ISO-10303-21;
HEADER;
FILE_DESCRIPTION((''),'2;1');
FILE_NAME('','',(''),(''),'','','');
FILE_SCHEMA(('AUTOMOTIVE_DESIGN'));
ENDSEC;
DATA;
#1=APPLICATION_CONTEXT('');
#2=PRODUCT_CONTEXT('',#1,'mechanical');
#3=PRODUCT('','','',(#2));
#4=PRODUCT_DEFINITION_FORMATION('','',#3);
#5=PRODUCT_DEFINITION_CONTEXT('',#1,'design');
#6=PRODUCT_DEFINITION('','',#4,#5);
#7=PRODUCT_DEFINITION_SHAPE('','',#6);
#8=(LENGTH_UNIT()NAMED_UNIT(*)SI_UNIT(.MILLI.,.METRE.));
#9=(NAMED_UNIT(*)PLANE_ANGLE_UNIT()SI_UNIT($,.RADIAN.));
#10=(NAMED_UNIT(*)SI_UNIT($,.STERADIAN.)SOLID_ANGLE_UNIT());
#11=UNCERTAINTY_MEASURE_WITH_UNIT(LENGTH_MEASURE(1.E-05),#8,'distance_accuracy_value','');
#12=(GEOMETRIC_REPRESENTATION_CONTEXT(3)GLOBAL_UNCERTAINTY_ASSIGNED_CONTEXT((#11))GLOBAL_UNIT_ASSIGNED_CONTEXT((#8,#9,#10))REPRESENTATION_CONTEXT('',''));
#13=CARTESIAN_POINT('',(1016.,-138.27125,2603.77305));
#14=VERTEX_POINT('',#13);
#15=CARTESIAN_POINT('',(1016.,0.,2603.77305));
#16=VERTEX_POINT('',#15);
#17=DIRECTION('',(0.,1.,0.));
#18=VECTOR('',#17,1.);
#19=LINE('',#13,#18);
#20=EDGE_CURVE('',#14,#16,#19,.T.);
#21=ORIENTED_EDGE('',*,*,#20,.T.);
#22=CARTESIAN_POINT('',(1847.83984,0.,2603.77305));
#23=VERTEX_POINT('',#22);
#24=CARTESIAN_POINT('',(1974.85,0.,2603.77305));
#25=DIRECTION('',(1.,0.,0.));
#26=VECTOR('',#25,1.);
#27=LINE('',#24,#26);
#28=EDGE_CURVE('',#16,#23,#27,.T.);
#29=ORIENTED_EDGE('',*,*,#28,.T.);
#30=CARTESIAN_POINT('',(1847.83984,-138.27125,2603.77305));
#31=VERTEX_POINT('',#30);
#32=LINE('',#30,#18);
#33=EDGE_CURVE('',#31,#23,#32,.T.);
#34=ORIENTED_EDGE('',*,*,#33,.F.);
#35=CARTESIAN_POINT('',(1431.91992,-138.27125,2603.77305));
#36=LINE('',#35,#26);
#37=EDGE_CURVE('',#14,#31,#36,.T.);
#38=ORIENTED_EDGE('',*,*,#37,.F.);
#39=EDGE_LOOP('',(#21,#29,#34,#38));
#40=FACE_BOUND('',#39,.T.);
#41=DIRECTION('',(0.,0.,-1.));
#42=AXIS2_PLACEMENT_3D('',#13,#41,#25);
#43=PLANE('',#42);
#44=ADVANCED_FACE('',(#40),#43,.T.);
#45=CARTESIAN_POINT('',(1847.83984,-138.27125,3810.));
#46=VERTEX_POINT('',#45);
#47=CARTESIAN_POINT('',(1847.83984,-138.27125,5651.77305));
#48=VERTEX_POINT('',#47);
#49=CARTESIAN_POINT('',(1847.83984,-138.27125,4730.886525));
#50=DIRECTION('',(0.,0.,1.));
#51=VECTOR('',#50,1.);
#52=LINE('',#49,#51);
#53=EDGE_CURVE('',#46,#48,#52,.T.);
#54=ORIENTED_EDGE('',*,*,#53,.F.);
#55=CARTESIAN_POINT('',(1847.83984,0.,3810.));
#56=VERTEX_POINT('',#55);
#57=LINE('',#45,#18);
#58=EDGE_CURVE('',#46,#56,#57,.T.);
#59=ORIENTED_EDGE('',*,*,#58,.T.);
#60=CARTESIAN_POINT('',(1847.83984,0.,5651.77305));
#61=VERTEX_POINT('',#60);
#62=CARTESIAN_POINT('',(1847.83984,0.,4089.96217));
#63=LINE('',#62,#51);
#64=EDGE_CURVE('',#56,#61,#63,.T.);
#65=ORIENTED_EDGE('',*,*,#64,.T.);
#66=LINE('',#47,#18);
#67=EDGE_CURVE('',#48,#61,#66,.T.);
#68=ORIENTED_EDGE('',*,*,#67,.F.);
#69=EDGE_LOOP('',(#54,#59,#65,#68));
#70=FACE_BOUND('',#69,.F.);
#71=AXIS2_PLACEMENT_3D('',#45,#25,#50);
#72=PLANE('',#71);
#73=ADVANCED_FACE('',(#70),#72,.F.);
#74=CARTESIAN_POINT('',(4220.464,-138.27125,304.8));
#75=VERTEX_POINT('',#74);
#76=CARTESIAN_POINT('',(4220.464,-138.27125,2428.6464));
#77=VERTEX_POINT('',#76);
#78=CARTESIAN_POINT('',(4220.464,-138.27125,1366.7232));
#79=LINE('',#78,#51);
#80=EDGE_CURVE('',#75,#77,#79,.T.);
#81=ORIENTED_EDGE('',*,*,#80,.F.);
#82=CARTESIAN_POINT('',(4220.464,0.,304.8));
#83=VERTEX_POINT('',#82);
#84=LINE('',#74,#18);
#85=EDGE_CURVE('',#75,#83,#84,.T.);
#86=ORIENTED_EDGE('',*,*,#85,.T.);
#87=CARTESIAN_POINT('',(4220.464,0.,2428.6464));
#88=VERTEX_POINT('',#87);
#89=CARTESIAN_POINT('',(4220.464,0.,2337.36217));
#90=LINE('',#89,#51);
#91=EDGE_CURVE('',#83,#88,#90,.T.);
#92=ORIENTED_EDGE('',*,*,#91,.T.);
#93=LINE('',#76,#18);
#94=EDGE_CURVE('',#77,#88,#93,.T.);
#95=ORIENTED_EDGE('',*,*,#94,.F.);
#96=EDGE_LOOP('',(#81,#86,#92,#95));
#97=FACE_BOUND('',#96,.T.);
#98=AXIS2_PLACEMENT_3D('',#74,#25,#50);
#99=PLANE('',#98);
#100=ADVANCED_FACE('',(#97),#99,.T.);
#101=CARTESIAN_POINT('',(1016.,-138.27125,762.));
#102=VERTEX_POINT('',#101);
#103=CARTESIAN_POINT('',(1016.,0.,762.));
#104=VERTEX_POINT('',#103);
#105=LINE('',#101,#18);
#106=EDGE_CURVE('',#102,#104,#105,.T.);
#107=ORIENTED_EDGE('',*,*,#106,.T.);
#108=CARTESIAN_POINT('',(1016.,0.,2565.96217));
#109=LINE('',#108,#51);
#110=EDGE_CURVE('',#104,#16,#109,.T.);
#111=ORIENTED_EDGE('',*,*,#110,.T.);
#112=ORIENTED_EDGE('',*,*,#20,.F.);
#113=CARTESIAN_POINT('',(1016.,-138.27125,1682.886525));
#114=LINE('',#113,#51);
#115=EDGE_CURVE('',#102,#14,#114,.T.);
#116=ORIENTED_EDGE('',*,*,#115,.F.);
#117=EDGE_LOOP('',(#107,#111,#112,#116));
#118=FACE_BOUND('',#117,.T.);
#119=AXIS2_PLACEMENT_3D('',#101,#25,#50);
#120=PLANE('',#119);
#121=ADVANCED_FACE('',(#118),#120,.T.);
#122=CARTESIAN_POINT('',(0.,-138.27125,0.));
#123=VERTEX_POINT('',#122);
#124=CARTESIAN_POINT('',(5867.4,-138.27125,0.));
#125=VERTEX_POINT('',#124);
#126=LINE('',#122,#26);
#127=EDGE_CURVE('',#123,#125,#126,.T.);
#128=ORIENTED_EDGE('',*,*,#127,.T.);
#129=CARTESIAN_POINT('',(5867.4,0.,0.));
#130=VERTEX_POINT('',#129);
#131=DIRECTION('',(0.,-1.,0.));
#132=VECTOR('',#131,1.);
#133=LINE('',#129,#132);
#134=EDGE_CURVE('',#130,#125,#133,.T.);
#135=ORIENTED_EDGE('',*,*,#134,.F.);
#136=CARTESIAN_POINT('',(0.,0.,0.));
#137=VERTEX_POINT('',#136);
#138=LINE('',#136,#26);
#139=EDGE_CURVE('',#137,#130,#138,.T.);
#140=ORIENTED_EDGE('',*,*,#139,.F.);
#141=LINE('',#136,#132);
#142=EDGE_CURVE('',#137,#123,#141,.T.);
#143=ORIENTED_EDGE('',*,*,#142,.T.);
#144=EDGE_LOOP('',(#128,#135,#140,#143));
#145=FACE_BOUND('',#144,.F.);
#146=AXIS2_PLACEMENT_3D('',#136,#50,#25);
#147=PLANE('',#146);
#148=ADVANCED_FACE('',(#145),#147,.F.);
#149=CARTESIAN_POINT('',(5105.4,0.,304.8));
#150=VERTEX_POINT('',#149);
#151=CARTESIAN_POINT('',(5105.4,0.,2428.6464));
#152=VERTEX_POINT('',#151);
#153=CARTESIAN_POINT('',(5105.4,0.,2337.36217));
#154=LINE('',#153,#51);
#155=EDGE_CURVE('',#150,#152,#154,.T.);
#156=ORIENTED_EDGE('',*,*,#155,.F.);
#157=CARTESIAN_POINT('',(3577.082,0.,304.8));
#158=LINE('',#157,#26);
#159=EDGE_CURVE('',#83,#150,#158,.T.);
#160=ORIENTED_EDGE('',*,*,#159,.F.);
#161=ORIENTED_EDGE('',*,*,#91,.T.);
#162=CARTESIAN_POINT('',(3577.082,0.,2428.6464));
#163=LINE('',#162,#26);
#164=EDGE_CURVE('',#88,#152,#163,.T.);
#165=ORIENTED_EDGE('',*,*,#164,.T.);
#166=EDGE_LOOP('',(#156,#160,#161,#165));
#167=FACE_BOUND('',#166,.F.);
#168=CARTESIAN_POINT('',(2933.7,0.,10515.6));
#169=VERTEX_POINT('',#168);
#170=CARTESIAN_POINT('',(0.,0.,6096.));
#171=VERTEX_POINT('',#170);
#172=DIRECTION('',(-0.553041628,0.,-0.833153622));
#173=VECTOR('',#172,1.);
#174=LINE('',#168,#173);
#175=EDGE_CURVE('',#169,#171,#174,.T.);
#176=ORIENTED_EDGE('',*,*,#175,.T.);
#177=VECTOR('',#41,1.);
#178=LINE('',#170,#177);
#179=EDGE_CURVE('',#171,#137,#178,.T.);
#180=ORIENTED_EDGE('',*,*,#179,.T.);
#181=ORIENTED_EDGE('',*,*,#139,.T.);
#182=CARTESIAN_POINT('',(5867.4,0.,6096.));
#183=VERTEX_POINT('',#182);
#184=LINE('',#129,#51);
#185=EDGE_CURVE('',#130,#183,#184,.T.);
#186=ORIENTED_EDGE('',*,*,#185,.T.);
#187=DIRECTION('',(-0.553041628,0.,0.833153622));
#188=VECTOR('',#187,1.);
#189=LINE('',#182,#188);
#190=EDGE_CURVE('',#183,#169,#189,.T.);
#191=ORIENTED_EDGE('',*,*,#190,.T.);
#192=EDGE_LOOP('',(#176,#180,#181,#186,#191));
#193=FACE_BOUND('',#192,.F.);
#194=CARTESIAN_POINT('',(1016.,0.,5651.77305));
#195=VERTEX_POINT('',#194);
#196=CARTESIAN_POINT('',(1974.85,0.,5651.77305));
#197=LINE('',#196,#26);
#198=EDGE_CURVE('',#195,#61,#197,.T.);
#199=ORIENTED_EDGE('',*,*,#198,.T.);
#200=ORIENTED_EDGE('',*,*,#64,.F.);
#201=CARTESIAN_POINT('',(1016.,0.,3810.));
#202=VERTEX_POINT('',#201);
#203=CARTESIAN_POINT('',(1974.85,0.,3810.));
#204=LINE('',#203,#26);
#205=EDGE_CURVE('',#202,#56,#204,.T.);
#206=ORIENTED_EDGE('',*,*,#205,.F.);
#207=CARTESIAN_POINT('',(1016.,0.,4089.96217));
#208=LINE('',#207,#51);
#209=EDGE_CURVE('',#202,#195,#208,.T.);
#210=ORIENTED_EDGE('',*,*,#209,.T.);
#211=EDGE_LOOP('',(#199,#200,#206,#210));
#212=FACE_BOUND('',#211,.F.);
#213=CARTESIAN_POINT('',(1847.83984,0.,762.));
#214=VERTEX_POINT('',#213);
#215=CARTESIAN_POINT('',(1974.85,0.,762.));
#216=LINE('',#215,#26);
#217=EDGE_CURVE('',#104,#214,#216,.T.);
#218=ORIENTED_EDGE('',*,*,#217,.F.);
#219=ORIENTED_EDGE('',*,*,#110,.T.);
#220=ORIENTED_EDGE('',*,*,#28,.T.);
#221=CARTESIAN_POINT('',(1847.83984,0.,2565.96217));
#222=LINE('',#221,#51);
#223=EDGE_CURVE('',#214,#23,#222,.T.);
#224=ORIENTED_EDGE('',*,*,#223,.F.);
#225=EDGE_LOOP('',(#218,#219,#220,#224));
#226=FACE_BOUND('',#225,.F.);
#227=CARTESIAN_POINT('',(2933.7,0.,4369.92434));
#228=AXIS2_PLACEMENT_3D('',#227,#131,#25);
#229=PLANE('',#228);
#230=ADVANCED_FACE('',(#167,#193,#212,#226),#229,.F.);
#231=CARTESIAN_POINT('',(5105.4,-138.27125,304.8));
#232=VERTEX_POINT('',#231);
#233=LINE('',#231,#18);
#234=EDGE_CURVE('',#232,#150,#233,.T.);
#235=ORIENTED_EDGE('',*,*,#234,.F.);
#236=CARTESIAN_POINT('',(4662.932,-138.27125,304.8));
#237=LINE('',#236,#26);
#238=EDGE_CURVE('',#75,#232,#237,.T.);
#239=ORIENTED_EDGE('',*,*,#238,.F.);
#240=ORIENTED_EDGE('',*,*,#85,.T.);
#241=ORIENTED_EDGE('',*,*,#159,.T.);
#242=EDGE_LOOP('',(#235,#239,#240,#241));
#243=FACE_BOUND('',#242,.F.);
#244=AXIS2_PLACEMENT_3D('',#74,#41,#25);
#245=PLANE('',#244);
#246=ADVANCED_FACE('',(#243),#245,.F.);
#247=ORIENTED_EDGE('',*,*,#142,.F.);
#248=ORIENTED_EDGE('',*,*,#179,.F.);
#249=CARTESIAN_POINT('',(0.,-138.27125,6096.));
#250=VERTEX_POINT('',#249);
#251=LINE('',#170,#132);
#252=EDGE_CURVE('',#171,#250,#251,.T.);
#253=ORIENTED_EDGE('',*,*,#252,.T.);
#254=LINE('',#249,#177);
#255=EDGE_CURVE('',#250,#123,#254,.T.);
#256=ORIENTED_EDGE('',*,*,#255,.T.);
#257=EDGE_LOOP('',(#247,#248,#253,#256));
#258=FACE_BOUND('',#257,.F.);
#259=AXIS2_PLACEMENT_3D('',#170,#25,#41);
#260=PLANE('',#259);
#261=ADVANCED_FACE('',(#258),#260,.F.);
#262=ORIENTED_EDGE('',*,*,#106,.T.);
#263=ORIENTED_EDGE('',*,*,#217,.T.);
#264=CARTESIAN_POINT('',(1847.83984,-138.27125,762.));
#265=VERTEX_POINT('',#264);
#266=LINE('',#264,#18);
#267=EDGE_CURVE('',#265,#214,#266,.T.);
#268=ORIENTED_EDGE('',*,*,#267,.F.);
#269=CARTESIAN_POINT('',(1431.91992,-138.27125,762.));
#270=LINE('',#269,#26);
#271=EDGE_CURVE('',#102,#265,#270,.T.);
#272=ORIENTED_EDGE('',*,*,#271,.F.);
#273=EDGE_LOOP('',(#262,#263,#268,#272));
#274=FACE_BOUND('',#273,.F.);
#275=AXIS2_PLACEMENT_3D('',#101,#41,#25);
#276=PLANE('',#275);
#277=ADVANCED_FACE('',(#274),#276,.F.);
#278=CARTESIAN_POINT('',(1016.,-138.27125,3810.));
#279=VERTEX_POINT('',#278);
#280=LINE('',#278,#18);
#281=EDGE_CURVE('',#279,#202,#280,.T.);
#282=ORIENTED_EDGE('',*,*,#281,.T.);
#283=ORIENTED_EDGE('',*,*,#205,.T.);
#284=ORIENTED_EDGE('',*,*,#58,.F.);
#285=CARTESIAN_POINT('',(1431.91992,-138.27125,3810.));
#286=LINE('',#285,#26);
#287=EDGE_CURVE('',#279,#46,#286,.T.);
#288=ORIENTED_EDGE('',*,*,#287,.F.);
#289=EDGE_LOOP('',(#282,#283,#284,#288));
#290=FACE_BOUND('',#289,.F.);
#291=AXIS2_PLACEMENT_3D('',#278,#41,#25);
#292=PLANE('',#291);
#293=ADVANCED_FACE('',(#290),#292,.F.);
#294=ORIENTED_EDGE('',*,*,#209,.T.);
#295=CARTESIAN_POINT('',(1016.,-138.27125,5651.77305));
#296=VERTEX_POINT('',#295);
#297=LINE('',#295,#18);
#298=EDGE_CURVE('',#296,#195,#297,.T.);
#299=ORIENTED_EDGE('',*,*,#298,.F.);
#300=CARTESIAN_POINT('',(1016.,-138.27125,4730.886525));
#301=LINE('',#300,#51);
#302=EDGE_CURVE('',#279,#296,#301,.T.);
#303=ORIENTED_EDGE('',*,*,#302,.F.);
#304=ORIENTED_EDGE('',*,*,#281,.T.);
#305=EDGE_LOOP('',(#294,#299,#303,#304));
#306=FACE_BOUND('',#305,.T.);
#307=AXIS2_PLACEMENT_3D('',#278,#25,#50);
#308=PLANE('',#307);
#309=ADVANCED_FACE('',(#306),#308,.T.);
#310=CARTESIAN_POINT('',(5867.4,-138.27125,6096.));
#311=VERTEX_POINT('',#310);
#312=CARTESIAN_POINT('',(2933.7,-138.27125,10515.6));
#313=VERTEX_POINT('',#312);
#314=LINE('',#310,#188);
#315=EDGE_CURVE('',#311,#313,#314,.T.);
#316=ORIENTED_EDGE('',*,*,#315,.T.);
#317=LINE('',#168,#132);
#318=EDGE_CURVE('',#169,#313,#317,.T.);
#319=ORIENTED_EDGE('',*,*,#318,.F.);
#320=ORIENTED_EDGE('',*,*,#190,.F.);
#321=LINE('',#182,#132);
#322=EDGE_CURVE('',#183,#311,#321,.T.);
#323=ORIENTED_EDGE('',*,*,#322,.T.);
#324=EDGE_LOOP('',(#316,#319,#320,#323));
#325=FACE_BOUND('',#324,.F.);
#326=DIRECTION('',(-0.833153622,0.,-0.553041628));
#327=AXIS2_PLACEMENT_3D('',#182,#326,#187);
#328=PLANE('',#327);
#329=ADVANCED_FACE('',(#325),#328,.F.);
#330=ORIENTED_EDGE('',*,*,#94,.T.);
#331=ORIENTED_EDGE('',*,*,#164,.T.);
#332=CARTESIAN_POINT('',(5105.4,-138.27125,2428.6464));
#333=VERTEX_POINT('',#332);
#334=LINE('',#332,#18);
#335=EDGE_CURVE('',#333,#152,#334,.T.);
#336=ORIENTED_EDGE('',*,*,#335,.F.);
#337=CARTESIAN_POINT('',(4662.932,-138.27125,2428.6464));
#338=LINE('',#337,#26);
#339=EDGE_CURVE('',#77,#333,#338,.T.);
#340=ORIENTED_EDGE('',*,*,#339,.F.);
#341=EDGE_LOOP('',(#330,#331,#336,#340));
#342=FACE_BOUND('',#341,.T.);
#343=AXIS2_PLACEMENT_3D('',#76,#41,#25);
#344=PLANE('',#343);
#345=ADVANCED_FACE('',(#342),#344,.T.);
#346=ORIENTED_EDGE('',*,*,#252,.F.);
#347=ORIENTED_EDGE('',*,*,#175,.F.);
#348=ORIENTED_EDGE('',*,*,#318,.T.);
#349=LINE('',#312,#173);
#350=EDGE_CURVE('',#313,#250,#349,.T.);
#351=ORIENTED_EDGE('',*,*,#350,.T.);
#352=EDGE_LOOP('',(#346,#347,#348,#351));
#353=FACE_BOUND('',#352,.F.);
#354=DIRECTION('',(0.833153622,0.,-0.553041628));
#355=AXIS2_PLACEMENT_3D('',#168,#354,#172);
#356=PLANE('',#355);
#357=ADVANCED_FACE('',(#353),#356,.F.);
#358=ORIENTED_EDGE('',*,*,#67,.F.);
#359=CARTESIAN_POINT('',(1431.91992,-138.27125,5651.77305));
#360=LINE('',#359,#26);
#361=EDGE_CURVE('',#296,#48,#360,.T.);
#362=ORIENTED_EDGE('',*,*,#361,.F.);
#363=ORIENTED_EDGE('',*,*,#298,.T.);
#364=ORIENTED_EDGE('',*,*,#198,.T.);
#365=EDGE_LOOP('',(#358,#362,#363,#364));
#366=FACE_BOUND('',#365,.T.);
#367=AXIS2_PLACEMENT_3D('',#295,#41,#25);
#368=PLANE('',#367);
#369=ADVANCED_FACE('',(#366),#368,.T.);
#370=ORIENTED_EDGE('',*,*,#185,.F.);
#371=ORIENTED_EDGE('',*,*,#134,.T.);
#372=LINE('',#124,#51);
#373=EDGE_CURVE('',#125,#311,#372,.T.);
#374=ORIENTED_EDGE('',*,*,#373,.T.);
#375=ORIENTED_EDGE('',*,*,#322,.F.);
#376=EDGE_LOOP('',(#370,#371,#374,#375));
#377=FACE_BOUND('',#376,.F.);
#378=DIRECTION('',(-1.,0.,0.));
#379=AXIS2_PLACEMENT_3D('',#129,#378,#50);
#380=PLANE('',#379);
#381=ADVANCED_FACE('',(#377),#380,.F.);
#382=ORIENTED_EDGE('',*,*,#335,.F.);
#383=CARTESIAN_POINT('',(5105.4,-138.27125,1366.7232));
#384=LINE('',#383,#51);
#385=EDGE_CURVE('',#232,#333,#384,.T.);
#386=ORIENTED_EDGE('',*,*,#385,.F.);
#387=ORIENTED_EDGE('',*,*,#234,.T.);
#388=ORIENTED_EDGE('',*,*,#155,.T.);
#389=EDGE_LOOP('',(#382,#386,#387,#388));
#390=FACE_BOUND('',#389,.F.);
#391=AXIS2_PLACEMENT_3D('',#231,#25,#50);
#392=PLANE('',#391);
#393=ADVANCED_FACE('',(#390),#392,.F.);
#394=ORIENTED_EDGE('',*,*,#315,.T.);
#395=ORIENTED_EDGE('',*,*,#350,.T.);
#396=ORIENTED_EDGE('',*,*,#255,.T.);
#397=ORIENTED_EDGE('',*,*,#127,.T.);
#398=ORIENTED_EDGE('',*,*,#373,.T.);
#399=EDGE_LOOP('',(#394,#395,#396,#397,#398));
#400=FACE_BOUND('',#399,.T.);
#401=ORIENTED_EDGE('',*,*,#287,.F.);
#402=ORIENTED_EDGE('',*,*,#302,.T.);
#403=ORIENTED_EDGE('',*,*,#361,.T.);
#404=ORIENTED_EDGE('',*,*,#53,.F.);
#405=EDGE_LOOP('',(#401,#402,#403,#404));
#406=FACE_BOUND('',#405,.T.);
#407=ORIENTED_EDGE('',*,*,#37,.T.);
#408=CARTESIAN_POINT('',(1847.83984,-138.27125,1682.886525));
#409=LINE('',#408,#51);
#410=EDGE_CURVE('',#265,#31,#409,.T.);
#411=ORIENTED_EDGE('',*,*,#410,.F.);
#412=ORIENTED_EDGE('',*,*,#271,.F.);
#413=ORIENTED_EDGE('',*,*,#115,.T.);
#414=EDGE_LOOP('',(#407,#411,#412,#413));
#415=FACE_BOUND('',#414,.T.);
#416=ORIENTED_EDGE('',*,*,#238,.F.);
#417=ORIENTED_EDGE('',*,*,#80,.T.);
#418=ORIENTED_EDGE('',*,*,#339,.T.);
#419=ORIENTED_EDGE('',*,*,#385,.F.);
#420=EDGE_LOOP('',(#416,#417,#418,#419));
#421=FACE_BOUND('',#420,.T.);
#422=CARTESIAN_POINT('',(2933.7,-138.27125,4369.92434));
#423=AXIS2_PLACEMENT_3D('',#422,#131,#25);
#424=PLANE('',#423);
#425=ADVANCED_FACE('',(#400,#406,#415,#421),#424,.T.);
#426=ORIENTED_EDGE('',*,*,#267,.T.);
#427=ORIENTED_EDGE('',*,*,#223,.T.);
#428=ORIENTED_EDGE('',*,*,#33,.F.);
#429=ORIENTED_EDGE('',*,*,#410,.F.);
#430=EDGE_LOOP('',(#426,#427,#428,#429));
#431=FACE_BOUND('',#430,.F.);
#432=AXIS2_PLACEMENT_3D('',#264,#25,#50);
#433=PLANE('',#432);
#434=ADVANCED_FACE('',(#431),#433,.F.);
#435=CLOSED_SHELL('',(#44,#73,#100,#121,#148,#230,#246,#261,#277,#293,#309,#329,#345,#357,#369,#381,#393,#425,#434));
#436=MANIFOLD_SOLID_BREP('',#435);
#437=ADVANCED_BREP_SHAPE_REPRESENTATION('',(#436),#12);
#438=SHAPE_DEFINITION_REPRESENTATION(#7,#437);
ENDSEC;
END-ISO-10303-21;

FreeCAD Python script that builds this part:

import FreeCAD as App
import Part
import Sketcher

V = App.Vector
Q = App.Units.Quantity

doc = App.newDocument("Part")
params = doc.addObject("Spreadsheet::Sheet", "Params")
for row, (alias, value) in enumerate([
    ("sketch1_width", "231 in"),
    ("sketch1_height", "240 in"),
    ("pad1_length", "138.27125 mm"),
    ("sketch2_width", "34.84 in"),
    ("sketch2_height", "83.616 in"),
], start=1):
    params.set(f"A{row}", alias)
    params.set(f"B{row}", "=" + value)
    params.setAlias(f"B{row}", alias)

body = doc.addObject("PartDesign::Body", "Body")

# Sketch on XZ plane
sketch1 = doc.addObject("Sketcher::SketchObject", "Sketch")
body.addObject(sketch1)
sketch1.AttachmentSupport = (doc.XZ_Plane, [""])
sketch1.MapMode = "FlatFace"
sketch1.addGeometry(Part.LineSegment(V(0, 6096, 0), V(0, 0, 0)), False)
sketch1.addGeometry(Part.LineSegment(V(0, 0, 0), V(5867, 0, 0)), False)
sketch1.addGeometry(Part.LineSegment(V(5867, 0, 0), V(5867, 6096, 0)), False)
sketch1.addGeometry(Part.LineSegment(V(5867, 6096, 0), V(2934, 10516, 0)), False)
sketch1.addGeometry(Part.LineSegment(V(2934, 10516, 0), V(0, 6096, 0)), False)
sketch1.addConstraint(Sketcher.Constraint("Coincident", 0, 2, 1, 1))
sketch1.addConstraint(Sketcher.Constraint("Coincident", 1, 2, 2, 1))
sketch1.addConstraint(Sketcher.Constraint("Coincident", 2, 2, 3, 1))
sketch1.addConstraint(Sketcher.Constraint("Coincident", 3, 2, 4, 1))
sketch1.addConstraint(Sketcher.Constraint("Coincident", 4, 2, 0, 1))
sketch1.addConstraint(Sketcher.Constraint("Vertical", 0))
sketch1.addConstraint(Sketcher.Constraint("Horizontal", 1))
sketch1.addConstraint(Sketcher.Constraint("Vertical", 2))
sketch1.addConstraint(Sketcher.Constraint("Coincident", 0, 2, -1, 1))
sketch1.addConstraint(Sketcher.Constraint("Horizontal", 2, 2, 4, 2))
sketch1.addConstraint(Sketcher.Constraint("Equal", 3, 4))
sketch1.addConstraint(Sketcher.Constraint("DistanceX", 1, 1, 1, 2, Q("231 in")))
sketch1.addConstraint(Sketcher.Constraint("DistanceY", 0, 2, 0, 1, Q("240 in")))
sketch1.addConstraint(Sketcher.Constraint("DistanceY", -1, 1, 3, 2, Q("414 in")))
sketch1.setExpression("Constraints[11]", "Params.sketch1_width")
sketch1.setExpression("Constraints[12]", "Params.sketch1_height")
pad1 = doc.addObject("PartDesign::Pad", "Pad")
body.addObject(pad1)
pad1.Profile = sketch1
pad1.setExpression("Length", "Params.pad1_length")

# Sketch on XZ plane
sketch2 = doc.addObject("Sketcher::SketchObject", "Sketch001")
body.addObject(sketch2)
sketch2.AttachmentSupport = (doc.XZ_Plane, [""])
sketch2.MapMode = "FlatFace"
sketch2.AttachmentOffset = App.Placement(V(0, 0, 138.27125), App.Rotation())
sketch2.addGeometry(Part.LineSegment(V(1016, 2604, 0), V(1016, 762, 0)), False)
sketch2.addGeometry(Part.LineSegment(V(1016, 762, 0), V(1848, 762, 0)), False)
sketch2.addGeometry(Part.LineSegment(V(1848, 762, 0), V(1848, 2604, 0)), False)
sketch2.addGeometry(Part.LineSegment(V(1848, 2604, 0), V(1016, 2604, 0)), False)
sketch2.addGeometry(Part.LineSegment(V(4220, 2429, 0), V(4220, 305, 0)), False)
sketch2.addGeometry(Part.LineSegment(V(4220, 305, 0), V(5105, 305, 0)), False)
sketch2.addGeometry(Part.LineSegment(V(5105, 305, 0), V(5105, 2429, 0)), False)
sketch2.addGeometry(Part.LineSegment(V(5105, 2429, 0), V(4220, 2429, 0)), False)
sketch2.addGeometry(Part.LineSegment(V(1016, 5652, 0), V(1016, 3810, 0)), False)
sketch2.addGeometry(Part.LineSegment(V(1016, 3810, 0), V(1848, 3810, 0)), False)
sketch2.addGeometry(Part.LineSegment(V(1848, 3810, 0), V(1848, 5652, 0)), False)
sketch2.addGeometry(Part.LineSegment(V(1848, 5652, 0), V(1016, 5652, 0)), False)
sketch2.addConstraint(Sketcher.Constraint("Coincident", 0, 2, 1, 1))
sketch2.addConstraint(Sketcher.Constraint("Coincident", 1, 2, 2, 1))
sketch2.addConstraint(Sketcher.Constraint("Coincident", 2, 2, 3, 1))
sketch2.addConstraint(Sketcher.Constraint("Coincident", 3, 2, 0, 1))
sketch2.addConstraint(Sketcher.Constraint("Coincident", 4, 2, 5, 1))
sketch2.addConstraint(Sketcher.Constraint("Coincident", 5, 2, 6, 1))
sketch2.addConstraint(Sketcher.Constraint("Coincident", 6, 2, 7, 1))
sketch2.addConstraint(Sketcher.Constraint("Coincident", 7, 2, 4, 1))
sketch2.addConstraint(Sketcher.Constraint("Coincident", 8, 2, 9, 1))
sketch2.addConstraint(Sketcher.Constraint("Coincident", 9, 2, 10, 1))
sketch2.addConstraint(Sketcher.Constraint("Coincident", 10, 2, 11, 1))
sketch2.addConstraint(Sketcher.Constraint("Coincident", 11, 2, 8, 1))
sketch2.addConstraint(Sketcher.Constraint("Vertical", 0))
sketch2.addConstraint(Sketcher.Constraint("Horizontal", 1))
sketch2.addConstraint(Sketcher.Constraint("Vertical", 2))
sketch2.addConstraint(Sketcher.Constraint("Horizontal", 3))
sketch2.addConstraint(Sketcher.Constraint("Vertical", 4))
sketch2.addConstraint(Sketcher.Constraint("Horizontal", 5))
sketch2.addConstraint(Sketcher.Constraint("Vertical", 6))
sketch2.addConstraint(Sketcher.Constraint("Horizontal", 7))
sketch2.addConstraint(Sketcher.Constraint("Vertical", 8))
sketch2.addConstraint(Sketcher.Constraint("Horizontal", 9))
sketch2.addConstraint(Sketcher.Constraint("Vertical", 10))
sketch2.addConstraint(Sketcher.Constraint("Horizontal", 11))
sketch2.addConstraint(Sketcher.Constraint("Vertical", 3, 2, 8, 2))
sketch2.addConstraint(Sketcher.Constraint("Vertical", 2, 2, 9, 2))
sketch2.addConstraint(Sketcher.Constraint("Equal", 2, 8))
sketch2.addConstraint(Sketcher.Constraint("DistanceX", -1, 1, 0, 2, Q("40 in")))
sketch2.addConstraint(Sketcher.Constraint("DistanceY", -1, 1, 0, 2, Q("30 in")))
sketch2.addConstraint(Sketcher.Constraint("DistanceY", -1, 1, 4, 2, Q("12 in")))
sketch2.addConstraint(Sketcher.Constraint("DistanceX", -1, 1, 5, 2, Q("201 in")))
sketch2.addConstraint(Sketcher.Constraint("DistanceY", -1, 1, 8, 2, Q("150 in")))
sketch2.addConstraint(Sketcher.Constraint("DistanceX", 5, 1, 5, 2, Q("34.84 in")))
sketch2.addConstraint(Sketcher.Constraint("DistanceY", 4, 2, 4, 1, Q("83.616 in")))
sketch2.addConstraint(Sketcher.Constraint("DistanceX", 1, 1, 1, 2, Q("32.7496 in")))
sketch2.addConstraint(Sketcher.Constraint("DistanceY", 0, 2, 0, 1, 1841.77305))
sketch2.setExpression("Constraints[32]", "Params.sketch2_width")
sketch2.setExpression("Constraints[33]", "Params.sketch2_height")
pocket1 = doc.addObject("PartDesign::Pocket", "Pocket")
body.addObject(pocket1)
pocket1.Profile = sketch2
pocket1.Type = "ThroughAll"

doc.recompute()
